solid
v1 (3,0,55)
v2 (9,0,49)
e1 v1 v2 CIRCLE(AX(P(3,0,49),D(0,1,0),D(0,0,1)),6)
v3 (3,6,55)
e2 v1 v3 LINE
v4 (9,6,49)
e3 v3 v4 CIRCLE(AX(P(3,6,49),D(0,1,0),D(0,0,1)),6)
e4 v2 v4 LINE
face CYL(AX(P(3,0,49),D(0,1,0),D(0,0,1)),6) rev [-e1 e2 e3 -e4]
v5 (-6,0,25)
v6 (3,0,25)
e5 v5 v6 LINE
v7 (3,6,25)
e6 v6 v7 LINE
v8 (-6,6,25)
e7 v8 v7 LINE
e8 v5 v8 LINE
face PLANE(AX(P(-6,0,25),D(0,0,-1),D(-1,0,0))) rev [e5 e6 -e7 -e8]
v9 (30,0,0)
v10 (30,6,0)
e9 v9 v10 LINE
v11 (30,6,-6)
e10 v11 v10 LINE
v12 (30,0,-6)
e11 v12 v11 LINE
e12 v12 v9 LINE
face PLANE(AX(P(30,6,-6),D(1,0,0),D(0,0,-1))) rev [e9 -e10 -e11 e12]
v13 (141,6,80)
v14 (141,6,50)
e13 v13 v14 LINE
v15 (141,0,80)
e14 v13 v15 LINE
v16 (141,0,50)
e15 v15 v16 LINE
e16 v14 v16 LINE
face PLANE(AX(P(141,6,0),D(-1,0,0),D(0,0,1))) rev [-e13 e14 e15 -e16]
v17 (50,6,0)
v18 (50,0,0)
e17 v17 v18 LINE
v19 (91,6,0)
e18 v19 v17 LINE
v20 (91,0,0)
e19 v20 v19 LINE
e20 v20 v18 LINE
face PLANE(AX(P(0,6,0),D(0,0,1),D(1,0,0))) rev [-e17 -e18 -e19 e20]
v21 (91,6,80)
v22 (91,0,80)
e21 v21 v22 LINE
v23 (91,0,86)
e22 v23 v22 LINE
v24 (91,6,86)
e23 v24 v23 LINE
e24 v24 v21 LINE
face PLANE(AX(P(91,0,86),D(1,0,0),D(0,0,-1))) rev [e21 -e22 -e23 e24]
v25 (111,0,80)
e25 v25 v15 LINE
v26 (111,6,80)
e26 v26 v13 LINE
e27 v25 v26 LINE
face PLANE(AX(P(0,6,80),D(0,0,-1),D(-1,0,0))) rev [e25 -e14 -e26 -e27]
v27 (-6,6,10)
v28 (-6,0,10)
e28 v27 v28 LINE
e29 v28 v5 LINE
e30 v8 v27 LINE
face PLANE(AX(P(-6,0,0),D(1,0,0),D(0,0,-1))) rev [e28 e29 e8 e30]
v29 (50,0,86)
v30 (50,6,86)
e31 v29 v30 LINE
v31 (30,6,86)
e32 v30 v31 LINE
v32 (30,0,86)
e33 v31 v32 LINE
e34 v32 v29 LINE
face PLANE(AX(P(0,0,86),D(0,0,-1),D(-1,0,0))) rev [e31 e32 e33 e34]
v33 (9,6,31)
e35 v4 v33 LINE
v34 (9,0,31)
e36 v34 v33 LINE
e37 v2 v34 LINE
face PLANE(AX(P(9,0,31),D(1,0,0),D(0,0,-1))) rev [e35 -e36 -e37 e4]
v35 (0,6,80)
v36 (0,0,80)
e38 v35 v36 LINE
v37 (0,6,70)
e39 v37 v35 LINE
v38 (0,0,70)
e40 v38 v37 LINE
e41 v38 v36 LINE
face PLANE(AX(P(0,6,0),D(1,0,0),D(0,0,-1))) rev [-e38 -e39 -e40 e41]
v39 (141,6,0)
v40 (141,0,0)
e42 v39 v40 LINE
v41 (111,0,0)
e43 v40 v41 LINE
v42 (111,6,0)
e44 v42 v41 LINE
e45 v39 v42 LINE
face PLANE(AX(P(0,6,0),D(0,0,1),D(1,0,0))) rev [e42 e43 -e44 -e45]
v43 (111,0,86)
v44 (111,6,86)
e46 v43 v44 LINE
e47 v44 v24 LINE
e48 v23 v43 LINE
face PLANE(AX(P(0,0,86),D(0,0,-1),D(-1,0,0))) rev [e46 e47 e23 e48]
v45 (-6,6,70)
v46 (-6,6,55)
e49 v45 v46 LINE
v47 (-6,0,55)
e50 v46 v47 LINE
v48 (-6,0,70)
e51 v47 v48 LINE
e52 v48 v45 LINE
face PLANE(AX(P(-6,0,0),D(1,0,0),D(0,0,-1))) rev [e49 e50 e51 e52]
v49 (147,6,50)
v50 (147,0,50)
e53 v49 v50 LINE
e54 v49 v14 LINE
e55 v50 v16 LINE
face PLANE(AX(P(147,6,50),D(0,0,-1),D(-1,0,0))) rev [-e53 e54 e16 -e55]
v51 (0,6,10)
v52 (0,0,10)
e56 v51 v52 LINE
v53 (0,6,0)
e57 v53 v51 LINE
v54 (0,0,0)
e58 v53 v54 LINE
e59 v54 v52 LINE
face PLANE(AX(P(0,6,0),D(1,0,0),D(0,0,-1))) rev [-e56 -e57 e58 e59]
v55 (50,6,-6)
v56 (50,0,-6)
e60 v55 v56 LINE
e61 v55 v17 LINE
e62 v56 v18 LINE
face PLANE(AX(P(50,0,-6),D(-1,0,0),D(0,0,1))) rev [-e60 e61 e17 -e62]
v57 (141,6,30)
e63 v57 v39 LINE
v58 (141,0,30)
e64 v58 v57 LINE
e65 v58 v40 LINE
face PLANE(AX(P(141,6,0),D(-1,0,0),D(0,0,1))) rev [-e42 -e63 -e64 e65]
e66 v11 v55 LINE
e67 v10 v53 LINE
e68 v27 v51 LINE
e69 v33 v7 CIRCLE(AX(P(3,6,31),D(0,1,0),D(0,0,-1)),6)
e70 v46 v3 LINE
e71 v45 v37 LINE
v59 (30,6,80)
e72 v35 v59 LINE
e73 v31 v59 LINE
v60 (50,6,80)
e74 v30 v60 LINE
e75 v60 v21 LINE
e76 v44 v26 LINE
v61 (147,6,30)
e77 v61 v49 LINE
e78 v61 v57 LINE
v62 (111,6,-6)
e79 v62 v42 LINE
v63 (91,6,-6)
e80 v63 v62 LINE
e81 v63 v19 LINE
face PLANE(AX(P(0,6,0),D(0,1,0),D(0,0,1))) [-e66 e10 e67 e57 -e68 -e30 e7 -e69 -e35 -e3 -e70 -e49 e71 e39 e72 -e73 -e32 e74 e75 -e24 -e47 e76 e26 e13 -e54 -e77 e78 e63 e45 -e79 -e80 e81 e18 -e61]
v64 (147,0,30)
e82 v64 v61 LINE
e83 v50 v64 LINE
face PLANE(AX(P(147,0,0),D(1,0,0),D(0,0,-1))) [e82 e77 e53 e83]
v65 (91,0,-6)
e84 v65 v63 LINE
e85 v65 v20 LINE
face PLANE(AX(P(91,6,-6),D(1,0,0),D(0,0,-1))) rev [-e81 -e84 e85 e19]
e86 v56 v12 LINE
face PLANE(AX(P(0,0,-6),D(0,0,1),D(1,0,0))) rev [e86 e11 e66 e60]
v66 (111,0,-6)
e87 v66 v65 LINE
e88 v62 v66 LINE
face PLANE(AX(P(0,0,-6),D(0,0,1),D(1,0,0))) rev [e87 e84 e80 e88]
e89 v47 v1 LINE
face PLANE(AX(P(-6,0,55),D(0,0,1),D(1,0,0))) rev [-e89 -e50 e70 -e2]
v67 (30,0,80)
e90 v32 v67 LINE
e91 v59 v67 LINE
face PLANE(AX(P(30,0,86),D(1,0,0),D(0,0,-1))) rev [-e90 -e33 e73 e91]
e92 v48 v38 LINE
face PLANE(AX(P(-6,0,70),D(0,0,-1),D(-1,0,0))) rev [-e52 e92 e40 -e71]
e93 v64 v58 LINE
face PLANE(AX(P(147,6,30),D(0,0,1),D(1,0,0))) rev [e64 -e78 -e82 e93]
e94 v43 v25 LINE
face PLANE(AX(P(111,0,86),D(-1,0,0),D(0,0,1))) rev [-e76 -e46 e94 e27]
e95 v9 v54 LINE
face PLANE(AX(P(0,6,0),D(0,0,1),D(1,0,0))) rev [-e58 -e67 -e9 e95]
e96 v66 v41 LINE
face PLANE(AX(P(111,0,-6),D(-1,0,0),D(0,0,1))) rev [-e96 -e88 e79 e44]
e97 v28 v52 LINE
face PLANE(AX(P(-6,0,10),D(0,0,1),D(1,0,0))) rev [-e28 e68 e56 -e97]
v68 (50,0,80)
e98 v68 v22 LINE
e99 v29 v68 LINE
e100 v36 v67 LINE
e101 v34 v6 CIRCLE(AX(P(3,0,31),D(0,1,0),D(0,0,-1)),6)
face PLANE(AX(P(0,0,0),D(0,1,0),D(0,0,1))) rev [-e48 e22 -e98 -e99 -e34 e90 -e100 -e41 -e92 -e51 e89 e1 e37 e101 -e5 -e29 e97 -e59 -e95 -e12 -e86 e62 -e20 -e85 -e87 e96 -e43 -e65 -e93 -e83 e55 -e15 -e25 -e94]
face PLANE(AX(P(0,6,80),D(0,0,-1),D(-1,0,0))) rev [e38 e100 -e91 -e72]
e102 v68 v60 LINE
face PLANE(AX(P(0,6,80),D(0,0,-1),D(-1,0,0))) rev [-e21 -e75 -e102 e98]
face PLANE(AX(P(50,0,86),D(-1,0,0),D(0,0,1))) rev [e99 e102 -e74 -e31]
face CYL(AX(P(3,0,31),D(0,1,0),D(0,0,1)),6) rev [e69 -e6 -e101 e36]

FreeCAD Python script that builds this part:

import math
import FreeCAD as App
import Part
import Sketcher


def add_polygon(sketch, points):
    """Adds a closed chain of lines whose ends are joined by coincident constraints."""
    first, n = sketch.GeometryCount, len(points)
    for a, b in zip(points, points[1:] + points[:1]):
        sketch.addGeometry(Part.LineSegment(App.Vector(*a, 0), App.Vector(*b, 0)), False)
    for i in range(n):
        sketch.addConstraint(Sketcher.Constraint("Coincident", first + i, 2, first + (i + 1) % n, 1))

doc = App.newDocument("Part")
body = doc.addObject("PartDesign::Body", "Body")

sketch1 = body.newObject("Sketcher::SketchObject", "Sketch")
sketch1.AttachmentSupport = (doc.getObject("XZ_Plane"), [""])
sketch1.MapMode = "FlatFace"
add_polygon(sketch1, [(0, 0), (0, 80), (141, 80), (141, 0)])
sketch1.addConstraint([
    Sketcher.Constraint("Vertical", 0),
    Sketcher.Constraint("Horizontal", 1),
    Sketcher.Constraint("Vertical", 2),
    Sketcher.Constraint("Horizontal", 3),
    Sketcher.Constraint("Coincident", 3, 2, -1, 1),
    Sketcher.Constraint("DistanceX", 1, 1, 1, 2, 141.0),
    Sketcher.Constraint("DistanceY", 0, 1, 0, 2, 80.0),
])
pad1 = body.newObject("PartDesign::Pad", "Pad")
pad1.Profile = sketch1
pad1.Length = 6
pad1.Reversed = True

sketch2 = body.newObject("Sketcher::SketchObject", "Sketch001")
sketch2.AttachmentSupport = (doc.getObject("XY_Plane"), [""])
sketch2.MapMode = "FlatFace"
sketch2.AttachmentOffset = App.Placement(App.Vector(0, 0, 80), App.Rotation())
add_polygon(sketch2, [(30, 6), (30, 0), (50, 0), (50, 6)])
add_polygon(sketch2, [(91, 6), (91, 0), (111, 0), (111, 6)])
sketch2.addConstraint([
    Sketcher.Constraint("Vertical", 0),
    Sketcher.Constraint("Horizontal", 1),
    Sketcher.Constraint("Vertical", 2),
    Sketcher.Constraint("Horizontal", 3),
    Sketcher.Constraint("Vertical", 4),
    Sketcher.Constraint("Horizontal", 5),
    Sketcher.Constraint("Vertical", 6),
    Sketcher.Constraint("Horizontal", 7),
    Sketcher.Constraint("PointOnObject", 0, 2, -1),
    Sketcher.Constraint("PointOnObject", 4, 2, -1),
    Sketcher.Constraint("Horizontal", 3, 2, 6, 2),
    Sketcher.Constraint("Equal", 3, 5),
    Sketcher.Constraint("DistanceX", 1, 1, 1, 2, 20.0),
    Sketcher.Constraint("DistanceY", 0, 2, 0, 1, 6.0),
    Sketcher.Constraint("DistanceX", -1, 1, 0, 2, 30.0),
    Sketcher.Constraint("DistanceX", -1, 1, 4, 2, 91.0),
])
pad2 = body.newObject("PartDesign::Pad", "Pad001")
pad2.Profile = sketch2
pad2.Length = 6

sketch3 = body.newObject("Sketcher::SketchObject", "Sketch002")
sketch3.AttachmentSupport = (doc.getObject("XY_Plane"), [""])
sketch3.MapMode = "FlatFace"
add_polygon(sketch3, [(111, 6), (111, 0), (91, 0), (91, 6)])
add_polygon(sketch3, [(50, 6), (50, 0), (30, 0), (30, 6)])
sketch3.addConstraint([
    Sketcher.Constraint("Vertical", 0),
    Sketcher.Constraint("Horizontal", 1),
    Sketcher.Constraint("Vertical", 2),
    Sketcher.Constraint("Horizontal", 3),
    Sketcher.Constraint("Vertical", 4),
    Sketcher.Constraint("Horizontal", 5),
    Sketcher.Constraint("Vertical", 6),
    Sketcher.Constraint("Horizontal", 7),
    Sketcher.Constraint("PointOnObject", 0, 2, -1),
    Sketcher.Constraint("PointOnObject", 4, 2, -1),
    Sketcher.Constraint("Horizontal", 3, 2, 6, 2),
    Sketcher.Constraint("Equal", 3, 5),
    Sketcher.Constraint("DistanceX", 1, 2, 1, 1, 20.0),
    Sketcher.Constraint("DistanceY", 0, 2, 0, 1, 6.0),
    Sketcher.Constraint("DistanceX", -1, 1, 0, 2, 111.0),
    Sketcher.Constraint("DistanceX", -1, 1, 4, 2, 50.0),
])
pad3 = body.newObject("PartDesign::Pad", "Pad002")
pad3.Profile = sketch3
pad3.Length = 6
pad3.Reversed = True

sketch4 = body.newObject("Sketcher::SketchObject", "Sketch003")
sketch4.AttachmentSupport = (doc.getObject("YZ_Plane"), [""])
sketch4.MapMode = "FlatFace"
add_polygon(sketch4, [(6, 10), (0, 10), (0, 25), (6, 25)])
add_polygon(sketch4, [(6, 55), (0, 55), (0, 70), (6, 70)])
sketch4.addConstraint([
    Sketcher.Constraint("Horizontal", 0),
    Sketcher.Constraint("Vertical", 1),
    Sketcher.Constraint("Horizontal", 2),
    Sketcher.Constraint("Vertical", 3),
    Sketcher.Constraint("Horizontal", 4),
    Sketcher.Constraint("Vertical", 5),
    Sketcher.Constraint("Horizontal", 6),
    Sketcher.Constraint("Vertical", 7),
    Sketcher.Constraint("PointOnObject", 0, 2, -2),
    Sketcher.Constraint("PointOnObject", 4, 2, -2),
    Sketcher.Constraint("Vertical", 3, 2, 6, 2),
    Sketcher.Constraint("Equal", 3, 5),
    Sketcher.Constraint("DistanceX", 0, 2, 0, 1, 6.0),
    Sketcher.Constraint("DistanceY", 1, 1, 1, 2, 15.0),
    Sketcher.Constraint("DistanceY", -1, 1, 0, 2, 10.0),
    Sketcher.Constraint("DistanceY", -1, 1, 4, 2, 55.0),
])
pad4 = body.newObject("PartDesign::Pad", "Pad003")
pad4.Profile = sketch4
pad4.Length = 6
pad4.Reversed = True

sketch5 = body.newObject("Sketcher::SketchObject", "Sketch004")
sketch5.AttachmentSupport = (doc.getObject("YZ_Plane"), [""])
sketch5.MapMode = "FlatFace"
sketch5.AttachmentOffset = App.Placement(App.Vector(0, 0, 141), App.Rotation())
add_polygon(sketch5, [(6, 50), (0, 50), (0, 30), (6, 30)])
sketch5.addConstraint([
    Sketcher.Constraint("Horizontal", 0),
    Sketcher.Constraint("Vertical", 1),
    Sketcher.Constraint("Horizontal", 2),
    Sketcher.Constraint("Vertical", 3),
    Sketcher.Constraint("PointOnObject", 0, 2, -2),
    Sketcher.Constraint("DistanceX", 0, 2, 0, 1, 6.0),
    Sketcher.Constraint("DistanceY", 1, 2, 1, 1, 20.0),
    Sketcher.Constraint("DistanceY", -1, 1, 0, 2, 50.0),
])
pad5 = body.newObject("PartDesign::Pad", "Pad004")
pad5.Profile = sketch5
pad5.Length = 6

sketch6 = body.newObject("Sketcher::SketchObject", "Sketch005")
sketch6.AttachmentSupport = (doc.getObject("XZ_Plane"), [""])
sketch6.MapMode = "FlatFace"
sketch6.AttachmentOffset = App.Placement(App.Vector(0, 0, -6), App.Rotation())
sketch6.addGeometry([
    Part.LineSegment(App.Vector(3, 25, 0), App.Vector(0, 25, 0)),
    Part.LineSegment(App.Vector(0, 25, 0), App.Vector(0, 55, 0)),
    Part.LineSegment(App.Vector(0, 55, 0), App.Vector(3, 55, 0)),
    Part.ArcOfCircle(Part.Circle(App.Vector(3, 49, 0), App.Vector(0, 0, 1), 6), math.radians(0), math.radians(90)),
    Part.LineSegment(App.Vector(9, 49, 0), App.Vector(9, 31, 0)),
    Part.ArcOfCircle(Part.Circle(App.Vector(3, 31, 0), App.Vector(0, 0, 1), 6), math.radians(-90), math.radians(0)),
], False)
sketch6.addConstraint([
    Sketcher.Constraint("Coincident", 0, 2, 1, 1),
    Sketcher.Constraint("Coincident", 1, 2, 2, 1),
    Sketcher.Constraint("Tangent", 2, 2, 3, 2),
    Sketcher.Constraint("Tangent", 3, 1, 4, 1),
    Sketcher.Constraint("Tangent", 4, 2, 5, 2),
    Sketcher.Constraint("Tangent", 5, 1, 0, 1),
    Sketcher.Constraint("Horizontal", 0),
    Sketcher.Constraint("Vertical", 1),
    Sketcher.Constraint("Horizontal", 2),
    Sketcher.Constraint("Vertical", 4),
    Sketcher.Constraint("Equal", 3, 5),
    Sketcher.Constraint("PointOnObject", 0, 2, -2),
    Sketcher.Constraint("Radius", 3, 6.0),
    Sketcher.Constraint("DistanceX", 0, 2, 0, 1, 3.0),
    Sketcher.Constraint("DistanceY", 1, 1, 1, 2, 30.0),
    Sketcher.Constraint("DistanceY", -1, 1, 3, 3, 49.0),
])
pocket1 = body.newObject("PartDesign::Pocket", "Pocket")
pocket1.Profile = sketch6
pocket1.Length = 6
pocket1.Reversed = True

doc.recompute()
